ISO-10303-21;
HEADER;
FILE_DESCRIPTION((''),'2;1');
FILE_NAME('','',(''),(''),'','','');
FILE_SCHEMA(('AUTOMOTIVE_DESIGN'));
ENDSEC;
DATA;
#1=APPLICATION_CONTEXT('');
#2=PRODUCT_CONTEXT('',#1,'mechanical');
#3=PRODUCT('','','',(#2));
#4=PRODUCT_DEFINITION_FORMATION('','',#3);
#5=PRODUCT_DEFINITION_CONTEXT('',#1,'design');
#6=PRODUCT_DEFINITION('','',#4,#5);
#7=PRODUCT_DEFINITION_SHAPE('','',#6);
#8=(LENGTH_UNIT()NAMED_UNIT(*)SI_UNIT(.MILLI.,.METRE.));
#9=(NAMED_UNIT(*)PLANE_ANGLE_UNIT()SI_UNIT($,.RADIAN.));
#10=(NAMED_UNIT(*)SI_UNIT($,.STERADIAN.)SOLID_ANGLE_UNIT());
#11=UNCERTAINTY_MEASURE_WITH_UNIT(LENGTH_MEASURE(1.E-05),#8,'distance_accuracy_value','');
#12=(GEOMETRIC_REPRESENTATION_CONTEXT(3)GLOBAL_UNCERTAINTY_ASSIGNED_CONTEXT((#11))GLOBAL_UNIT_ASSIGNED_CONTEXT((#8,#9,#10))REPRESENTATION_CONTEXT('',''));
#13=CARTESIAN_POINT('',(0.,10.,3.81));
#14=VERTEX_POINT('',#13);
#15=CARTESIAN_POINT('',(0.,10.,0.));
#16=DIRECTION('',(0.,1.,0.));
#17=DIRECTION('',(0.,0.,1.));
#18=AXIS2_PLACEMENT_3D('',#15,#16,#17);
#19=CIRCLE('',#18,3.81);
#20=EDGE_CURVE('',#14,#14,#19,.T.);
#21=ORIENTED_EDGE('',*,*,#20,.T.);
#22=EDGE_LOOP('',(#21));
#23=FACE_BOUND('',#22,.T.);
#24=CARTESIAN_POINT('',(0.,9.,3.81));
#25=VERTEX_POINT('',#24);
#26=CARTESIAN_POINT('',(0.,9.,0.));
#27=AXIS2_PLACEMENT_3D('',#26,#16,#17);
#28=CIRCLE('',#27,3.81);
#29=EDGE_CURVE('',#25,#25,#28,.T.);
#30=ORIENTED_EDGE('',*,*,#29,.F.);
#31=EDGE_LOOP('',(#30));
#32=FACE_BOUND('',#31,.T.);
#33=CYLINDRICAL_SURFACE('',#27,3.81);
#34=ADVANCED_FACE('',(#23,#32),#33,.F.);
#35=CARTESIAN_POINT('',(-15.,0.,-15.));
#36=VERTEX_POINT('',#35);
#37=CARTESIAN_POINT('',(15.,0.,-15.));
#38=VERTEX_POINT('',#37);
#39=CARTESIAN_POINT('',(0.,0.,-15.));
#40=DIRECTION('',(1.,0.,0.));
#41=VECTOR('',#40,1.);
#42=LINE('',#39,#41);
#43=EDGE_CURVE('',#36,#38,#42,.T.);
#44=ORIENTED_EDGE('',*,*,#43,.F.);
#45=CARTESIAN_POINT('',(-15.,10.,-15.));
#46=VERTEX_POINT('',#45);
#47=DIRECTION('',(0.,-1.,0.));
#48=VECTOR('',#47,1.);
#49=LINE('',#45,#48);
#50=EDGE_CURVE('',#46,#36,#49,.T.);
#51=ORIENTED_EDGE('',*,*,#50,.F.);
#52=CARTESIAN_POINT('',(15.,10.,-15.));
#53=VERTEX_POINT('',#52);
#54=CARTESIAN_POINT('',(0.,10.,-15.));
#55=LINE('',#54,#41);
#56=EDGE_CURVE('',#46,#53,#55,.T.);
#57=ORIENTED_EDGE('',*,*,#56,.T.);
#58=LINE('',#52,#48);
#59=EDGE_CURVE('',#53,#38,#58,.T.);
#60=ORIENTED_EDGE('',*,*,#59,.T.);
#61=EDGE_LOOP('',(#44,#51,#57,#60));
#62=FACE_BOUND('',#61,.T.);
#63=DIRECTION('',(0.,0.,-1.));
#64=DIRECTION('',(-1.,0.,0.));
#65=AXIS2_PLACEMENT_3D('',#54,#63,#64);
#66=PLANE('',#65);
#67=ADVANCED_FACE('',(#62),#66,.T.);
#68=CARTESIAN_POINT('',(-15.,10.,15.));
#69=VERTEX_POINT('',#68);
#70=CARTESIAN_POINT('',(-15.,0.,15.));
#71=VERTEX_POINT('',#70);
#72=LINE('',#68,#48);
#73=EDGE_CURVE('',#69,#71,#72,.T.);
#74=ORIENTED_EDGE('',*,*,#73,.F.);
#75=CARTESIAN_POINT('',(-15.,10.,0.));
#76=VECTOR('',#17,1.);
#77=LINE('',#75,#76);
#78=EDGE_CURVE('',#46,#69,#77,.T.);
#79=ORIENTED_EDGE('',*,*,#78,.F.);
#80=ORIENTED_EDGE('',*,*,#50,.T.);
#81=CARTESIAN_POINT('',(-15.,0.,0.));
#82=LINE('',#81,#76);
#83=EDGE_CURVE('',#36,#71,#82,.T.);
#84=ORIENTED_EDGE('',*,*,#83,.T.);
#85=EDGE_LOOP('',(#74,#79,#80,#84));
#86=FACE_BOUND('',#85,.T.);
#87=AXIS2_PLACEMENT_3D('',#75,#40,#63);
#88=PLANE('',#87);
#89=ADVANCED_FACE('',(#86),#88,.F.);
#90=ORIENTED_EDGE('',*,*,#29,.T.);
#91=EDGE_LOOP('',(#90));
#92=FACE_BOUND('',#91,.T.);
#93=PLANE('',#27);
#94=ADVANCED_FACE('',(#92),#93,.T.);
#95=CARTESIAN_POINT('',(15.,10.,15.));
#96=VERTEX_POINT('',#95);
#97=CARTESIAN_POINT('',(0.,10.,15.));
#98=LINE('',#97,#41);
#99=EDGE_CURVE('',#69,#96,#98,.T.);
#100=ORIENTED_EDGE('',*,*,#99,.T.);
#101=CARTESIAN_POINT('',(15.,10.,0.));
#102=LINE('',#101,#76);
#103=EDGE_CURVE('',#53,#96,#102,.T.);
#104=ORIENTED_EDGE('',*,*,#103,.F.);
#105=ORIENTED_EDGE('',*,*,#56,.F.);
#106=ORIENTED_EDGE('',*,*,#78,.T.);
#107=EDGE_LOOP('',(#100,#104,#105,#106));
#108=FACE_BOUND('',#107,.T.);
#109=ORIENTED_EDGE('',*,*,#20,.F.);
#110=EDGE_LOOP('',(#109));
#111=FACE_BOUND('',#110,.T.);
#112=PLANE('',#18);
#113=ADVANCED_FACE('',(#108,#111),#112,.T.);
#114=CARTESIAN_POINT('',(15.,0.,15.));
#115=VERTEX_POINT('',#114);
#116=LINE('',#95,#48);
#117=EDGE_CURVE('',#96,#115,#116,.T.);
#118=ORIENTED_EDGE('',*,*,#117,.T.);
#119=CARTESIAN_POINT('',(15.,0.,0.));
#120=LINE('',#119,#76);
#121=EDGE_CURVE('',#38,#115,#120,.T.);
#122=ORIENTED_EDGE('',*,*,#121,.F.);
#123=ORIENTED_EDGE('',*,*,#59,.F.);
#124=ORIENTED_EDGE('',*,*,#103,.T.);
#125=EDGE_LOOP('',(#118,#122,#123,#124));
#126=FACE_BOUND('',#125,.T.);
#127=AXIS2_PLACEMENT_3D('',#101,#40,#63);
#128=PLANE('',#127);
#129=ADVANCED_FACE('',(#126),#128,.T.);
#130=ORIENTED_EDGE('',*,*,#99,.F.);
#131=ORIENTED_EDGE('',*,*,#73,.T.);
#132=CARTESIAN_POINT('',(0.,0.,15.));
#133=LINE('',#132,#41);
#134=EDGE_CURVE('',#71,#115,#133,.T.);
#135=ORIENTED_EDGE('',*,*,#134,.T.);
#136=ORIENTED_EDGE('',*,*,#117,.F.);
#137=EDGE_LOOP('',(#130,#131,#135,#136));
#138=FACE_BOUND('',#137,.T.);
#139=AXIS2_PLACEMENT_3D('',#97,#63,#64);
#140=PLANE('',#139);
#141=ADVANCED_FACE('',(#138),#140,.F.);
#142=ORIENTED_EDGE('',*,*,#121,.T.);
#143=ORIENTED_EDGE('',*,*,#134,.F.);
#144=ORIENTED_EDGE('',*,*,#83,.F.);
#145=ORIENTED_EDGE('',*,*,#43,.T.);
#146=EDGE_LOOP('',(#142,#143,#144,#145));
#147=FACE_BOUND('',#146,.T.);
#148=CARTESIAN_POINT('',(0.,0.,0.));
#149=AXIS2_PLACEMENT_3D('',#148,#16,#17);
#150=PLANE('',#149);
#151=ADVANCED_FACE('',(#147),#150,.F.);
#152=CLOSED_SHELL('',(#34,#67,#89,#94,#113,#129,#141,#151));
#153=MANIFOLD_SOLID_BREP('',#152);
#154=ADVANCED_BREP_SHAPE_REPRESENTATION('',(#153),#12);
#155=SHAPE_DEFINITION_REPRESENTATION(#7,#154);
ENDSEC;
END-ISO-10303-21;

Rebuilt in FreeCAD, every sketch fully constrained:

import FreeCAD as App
import Part
import Sketcher
from FreeCAD import Vector
Q = App.Units.Quantity


def add_polygon(sketch, points):
    """Adds a closed chain of lines whose ends are joined by coincident constraints."""
    first, n = sketch.GeometryCount, len(points)
    for a, b in zip(points, points[1:] + points[:1]):
        sketch.addGeometry(Part.LineSegment(App.Vector(*a, 0), App.Vector(*b, 0)), False)
    for i in range(n):
        sketch.addConstraint(Sketcher.Constraint("Coincident", first + i, 2, first + (i + 1) % n, 1))

doc = App.newDocument("Part")
body = doc.addObject("PartDesign::Body", "Body")

sketch1 = body.newObject("Sketcher::SketchObject", "Sketch")
sketch1.AttachmentSupport = (doc.getObject("XZ_Plane"), [""])
sketch1.MapMode = "FlatFace"
add_polygon(sketch1, [(-15, -15), (-15, 15), (15, 15), (15, -15)])
sketch1.addConstraint([
    Sketcher.Constraint("Vertical", 0),
    Sketcher.Constraint("Horizontal", 1),
    Sketcher.Constraint("Vertical", 2),
    Sketcher.Constraint("Horizontal", 3),
    Sketcher.Constraint("Symmetric", 0, 2, 2, 2, -1, 1),
    Sketcher.Constraint("Equal", 3, 0),
    Sketcher.Constraint("DistanceX", 1, 1, 1, 2, Q("30 mm")),
])
pad1 = body.newObject("PartDesign::Pad", "Pad")
pad1.Profile = sketch1
pad1.Length = 10
pad1.Reversed = True

sketch2 = body.newObject("Sketcher::SketchObject", "Sketch001")
sketch2.AttachmentSupport = (doc.getObject("XZ_Plane"), [""])
sketch2.MapMode = "FlatFace"
sketch2.AttachmentOffset = App.Placement(Vector(0, 0, -10), App.Rotation())
sketch2.addGeometry(Part.Circle(Vector(0, 0, 0), Vector(0, 0, 1), 3.8), False)
sketch2.addConstraint([
    Sketcher.Constraint("Coincident", 0, 3, -1, 1),
    Sketcher.Constraint("Diameter", 0, Q("7.62 mm")),
])
pocket1 = body.newObject("PartDesign::Pocket", "Pocket")
pocket1.Profile = sketch2
pocket1.Length = 1
pocket1.Reversed = True

doc.recompute()
